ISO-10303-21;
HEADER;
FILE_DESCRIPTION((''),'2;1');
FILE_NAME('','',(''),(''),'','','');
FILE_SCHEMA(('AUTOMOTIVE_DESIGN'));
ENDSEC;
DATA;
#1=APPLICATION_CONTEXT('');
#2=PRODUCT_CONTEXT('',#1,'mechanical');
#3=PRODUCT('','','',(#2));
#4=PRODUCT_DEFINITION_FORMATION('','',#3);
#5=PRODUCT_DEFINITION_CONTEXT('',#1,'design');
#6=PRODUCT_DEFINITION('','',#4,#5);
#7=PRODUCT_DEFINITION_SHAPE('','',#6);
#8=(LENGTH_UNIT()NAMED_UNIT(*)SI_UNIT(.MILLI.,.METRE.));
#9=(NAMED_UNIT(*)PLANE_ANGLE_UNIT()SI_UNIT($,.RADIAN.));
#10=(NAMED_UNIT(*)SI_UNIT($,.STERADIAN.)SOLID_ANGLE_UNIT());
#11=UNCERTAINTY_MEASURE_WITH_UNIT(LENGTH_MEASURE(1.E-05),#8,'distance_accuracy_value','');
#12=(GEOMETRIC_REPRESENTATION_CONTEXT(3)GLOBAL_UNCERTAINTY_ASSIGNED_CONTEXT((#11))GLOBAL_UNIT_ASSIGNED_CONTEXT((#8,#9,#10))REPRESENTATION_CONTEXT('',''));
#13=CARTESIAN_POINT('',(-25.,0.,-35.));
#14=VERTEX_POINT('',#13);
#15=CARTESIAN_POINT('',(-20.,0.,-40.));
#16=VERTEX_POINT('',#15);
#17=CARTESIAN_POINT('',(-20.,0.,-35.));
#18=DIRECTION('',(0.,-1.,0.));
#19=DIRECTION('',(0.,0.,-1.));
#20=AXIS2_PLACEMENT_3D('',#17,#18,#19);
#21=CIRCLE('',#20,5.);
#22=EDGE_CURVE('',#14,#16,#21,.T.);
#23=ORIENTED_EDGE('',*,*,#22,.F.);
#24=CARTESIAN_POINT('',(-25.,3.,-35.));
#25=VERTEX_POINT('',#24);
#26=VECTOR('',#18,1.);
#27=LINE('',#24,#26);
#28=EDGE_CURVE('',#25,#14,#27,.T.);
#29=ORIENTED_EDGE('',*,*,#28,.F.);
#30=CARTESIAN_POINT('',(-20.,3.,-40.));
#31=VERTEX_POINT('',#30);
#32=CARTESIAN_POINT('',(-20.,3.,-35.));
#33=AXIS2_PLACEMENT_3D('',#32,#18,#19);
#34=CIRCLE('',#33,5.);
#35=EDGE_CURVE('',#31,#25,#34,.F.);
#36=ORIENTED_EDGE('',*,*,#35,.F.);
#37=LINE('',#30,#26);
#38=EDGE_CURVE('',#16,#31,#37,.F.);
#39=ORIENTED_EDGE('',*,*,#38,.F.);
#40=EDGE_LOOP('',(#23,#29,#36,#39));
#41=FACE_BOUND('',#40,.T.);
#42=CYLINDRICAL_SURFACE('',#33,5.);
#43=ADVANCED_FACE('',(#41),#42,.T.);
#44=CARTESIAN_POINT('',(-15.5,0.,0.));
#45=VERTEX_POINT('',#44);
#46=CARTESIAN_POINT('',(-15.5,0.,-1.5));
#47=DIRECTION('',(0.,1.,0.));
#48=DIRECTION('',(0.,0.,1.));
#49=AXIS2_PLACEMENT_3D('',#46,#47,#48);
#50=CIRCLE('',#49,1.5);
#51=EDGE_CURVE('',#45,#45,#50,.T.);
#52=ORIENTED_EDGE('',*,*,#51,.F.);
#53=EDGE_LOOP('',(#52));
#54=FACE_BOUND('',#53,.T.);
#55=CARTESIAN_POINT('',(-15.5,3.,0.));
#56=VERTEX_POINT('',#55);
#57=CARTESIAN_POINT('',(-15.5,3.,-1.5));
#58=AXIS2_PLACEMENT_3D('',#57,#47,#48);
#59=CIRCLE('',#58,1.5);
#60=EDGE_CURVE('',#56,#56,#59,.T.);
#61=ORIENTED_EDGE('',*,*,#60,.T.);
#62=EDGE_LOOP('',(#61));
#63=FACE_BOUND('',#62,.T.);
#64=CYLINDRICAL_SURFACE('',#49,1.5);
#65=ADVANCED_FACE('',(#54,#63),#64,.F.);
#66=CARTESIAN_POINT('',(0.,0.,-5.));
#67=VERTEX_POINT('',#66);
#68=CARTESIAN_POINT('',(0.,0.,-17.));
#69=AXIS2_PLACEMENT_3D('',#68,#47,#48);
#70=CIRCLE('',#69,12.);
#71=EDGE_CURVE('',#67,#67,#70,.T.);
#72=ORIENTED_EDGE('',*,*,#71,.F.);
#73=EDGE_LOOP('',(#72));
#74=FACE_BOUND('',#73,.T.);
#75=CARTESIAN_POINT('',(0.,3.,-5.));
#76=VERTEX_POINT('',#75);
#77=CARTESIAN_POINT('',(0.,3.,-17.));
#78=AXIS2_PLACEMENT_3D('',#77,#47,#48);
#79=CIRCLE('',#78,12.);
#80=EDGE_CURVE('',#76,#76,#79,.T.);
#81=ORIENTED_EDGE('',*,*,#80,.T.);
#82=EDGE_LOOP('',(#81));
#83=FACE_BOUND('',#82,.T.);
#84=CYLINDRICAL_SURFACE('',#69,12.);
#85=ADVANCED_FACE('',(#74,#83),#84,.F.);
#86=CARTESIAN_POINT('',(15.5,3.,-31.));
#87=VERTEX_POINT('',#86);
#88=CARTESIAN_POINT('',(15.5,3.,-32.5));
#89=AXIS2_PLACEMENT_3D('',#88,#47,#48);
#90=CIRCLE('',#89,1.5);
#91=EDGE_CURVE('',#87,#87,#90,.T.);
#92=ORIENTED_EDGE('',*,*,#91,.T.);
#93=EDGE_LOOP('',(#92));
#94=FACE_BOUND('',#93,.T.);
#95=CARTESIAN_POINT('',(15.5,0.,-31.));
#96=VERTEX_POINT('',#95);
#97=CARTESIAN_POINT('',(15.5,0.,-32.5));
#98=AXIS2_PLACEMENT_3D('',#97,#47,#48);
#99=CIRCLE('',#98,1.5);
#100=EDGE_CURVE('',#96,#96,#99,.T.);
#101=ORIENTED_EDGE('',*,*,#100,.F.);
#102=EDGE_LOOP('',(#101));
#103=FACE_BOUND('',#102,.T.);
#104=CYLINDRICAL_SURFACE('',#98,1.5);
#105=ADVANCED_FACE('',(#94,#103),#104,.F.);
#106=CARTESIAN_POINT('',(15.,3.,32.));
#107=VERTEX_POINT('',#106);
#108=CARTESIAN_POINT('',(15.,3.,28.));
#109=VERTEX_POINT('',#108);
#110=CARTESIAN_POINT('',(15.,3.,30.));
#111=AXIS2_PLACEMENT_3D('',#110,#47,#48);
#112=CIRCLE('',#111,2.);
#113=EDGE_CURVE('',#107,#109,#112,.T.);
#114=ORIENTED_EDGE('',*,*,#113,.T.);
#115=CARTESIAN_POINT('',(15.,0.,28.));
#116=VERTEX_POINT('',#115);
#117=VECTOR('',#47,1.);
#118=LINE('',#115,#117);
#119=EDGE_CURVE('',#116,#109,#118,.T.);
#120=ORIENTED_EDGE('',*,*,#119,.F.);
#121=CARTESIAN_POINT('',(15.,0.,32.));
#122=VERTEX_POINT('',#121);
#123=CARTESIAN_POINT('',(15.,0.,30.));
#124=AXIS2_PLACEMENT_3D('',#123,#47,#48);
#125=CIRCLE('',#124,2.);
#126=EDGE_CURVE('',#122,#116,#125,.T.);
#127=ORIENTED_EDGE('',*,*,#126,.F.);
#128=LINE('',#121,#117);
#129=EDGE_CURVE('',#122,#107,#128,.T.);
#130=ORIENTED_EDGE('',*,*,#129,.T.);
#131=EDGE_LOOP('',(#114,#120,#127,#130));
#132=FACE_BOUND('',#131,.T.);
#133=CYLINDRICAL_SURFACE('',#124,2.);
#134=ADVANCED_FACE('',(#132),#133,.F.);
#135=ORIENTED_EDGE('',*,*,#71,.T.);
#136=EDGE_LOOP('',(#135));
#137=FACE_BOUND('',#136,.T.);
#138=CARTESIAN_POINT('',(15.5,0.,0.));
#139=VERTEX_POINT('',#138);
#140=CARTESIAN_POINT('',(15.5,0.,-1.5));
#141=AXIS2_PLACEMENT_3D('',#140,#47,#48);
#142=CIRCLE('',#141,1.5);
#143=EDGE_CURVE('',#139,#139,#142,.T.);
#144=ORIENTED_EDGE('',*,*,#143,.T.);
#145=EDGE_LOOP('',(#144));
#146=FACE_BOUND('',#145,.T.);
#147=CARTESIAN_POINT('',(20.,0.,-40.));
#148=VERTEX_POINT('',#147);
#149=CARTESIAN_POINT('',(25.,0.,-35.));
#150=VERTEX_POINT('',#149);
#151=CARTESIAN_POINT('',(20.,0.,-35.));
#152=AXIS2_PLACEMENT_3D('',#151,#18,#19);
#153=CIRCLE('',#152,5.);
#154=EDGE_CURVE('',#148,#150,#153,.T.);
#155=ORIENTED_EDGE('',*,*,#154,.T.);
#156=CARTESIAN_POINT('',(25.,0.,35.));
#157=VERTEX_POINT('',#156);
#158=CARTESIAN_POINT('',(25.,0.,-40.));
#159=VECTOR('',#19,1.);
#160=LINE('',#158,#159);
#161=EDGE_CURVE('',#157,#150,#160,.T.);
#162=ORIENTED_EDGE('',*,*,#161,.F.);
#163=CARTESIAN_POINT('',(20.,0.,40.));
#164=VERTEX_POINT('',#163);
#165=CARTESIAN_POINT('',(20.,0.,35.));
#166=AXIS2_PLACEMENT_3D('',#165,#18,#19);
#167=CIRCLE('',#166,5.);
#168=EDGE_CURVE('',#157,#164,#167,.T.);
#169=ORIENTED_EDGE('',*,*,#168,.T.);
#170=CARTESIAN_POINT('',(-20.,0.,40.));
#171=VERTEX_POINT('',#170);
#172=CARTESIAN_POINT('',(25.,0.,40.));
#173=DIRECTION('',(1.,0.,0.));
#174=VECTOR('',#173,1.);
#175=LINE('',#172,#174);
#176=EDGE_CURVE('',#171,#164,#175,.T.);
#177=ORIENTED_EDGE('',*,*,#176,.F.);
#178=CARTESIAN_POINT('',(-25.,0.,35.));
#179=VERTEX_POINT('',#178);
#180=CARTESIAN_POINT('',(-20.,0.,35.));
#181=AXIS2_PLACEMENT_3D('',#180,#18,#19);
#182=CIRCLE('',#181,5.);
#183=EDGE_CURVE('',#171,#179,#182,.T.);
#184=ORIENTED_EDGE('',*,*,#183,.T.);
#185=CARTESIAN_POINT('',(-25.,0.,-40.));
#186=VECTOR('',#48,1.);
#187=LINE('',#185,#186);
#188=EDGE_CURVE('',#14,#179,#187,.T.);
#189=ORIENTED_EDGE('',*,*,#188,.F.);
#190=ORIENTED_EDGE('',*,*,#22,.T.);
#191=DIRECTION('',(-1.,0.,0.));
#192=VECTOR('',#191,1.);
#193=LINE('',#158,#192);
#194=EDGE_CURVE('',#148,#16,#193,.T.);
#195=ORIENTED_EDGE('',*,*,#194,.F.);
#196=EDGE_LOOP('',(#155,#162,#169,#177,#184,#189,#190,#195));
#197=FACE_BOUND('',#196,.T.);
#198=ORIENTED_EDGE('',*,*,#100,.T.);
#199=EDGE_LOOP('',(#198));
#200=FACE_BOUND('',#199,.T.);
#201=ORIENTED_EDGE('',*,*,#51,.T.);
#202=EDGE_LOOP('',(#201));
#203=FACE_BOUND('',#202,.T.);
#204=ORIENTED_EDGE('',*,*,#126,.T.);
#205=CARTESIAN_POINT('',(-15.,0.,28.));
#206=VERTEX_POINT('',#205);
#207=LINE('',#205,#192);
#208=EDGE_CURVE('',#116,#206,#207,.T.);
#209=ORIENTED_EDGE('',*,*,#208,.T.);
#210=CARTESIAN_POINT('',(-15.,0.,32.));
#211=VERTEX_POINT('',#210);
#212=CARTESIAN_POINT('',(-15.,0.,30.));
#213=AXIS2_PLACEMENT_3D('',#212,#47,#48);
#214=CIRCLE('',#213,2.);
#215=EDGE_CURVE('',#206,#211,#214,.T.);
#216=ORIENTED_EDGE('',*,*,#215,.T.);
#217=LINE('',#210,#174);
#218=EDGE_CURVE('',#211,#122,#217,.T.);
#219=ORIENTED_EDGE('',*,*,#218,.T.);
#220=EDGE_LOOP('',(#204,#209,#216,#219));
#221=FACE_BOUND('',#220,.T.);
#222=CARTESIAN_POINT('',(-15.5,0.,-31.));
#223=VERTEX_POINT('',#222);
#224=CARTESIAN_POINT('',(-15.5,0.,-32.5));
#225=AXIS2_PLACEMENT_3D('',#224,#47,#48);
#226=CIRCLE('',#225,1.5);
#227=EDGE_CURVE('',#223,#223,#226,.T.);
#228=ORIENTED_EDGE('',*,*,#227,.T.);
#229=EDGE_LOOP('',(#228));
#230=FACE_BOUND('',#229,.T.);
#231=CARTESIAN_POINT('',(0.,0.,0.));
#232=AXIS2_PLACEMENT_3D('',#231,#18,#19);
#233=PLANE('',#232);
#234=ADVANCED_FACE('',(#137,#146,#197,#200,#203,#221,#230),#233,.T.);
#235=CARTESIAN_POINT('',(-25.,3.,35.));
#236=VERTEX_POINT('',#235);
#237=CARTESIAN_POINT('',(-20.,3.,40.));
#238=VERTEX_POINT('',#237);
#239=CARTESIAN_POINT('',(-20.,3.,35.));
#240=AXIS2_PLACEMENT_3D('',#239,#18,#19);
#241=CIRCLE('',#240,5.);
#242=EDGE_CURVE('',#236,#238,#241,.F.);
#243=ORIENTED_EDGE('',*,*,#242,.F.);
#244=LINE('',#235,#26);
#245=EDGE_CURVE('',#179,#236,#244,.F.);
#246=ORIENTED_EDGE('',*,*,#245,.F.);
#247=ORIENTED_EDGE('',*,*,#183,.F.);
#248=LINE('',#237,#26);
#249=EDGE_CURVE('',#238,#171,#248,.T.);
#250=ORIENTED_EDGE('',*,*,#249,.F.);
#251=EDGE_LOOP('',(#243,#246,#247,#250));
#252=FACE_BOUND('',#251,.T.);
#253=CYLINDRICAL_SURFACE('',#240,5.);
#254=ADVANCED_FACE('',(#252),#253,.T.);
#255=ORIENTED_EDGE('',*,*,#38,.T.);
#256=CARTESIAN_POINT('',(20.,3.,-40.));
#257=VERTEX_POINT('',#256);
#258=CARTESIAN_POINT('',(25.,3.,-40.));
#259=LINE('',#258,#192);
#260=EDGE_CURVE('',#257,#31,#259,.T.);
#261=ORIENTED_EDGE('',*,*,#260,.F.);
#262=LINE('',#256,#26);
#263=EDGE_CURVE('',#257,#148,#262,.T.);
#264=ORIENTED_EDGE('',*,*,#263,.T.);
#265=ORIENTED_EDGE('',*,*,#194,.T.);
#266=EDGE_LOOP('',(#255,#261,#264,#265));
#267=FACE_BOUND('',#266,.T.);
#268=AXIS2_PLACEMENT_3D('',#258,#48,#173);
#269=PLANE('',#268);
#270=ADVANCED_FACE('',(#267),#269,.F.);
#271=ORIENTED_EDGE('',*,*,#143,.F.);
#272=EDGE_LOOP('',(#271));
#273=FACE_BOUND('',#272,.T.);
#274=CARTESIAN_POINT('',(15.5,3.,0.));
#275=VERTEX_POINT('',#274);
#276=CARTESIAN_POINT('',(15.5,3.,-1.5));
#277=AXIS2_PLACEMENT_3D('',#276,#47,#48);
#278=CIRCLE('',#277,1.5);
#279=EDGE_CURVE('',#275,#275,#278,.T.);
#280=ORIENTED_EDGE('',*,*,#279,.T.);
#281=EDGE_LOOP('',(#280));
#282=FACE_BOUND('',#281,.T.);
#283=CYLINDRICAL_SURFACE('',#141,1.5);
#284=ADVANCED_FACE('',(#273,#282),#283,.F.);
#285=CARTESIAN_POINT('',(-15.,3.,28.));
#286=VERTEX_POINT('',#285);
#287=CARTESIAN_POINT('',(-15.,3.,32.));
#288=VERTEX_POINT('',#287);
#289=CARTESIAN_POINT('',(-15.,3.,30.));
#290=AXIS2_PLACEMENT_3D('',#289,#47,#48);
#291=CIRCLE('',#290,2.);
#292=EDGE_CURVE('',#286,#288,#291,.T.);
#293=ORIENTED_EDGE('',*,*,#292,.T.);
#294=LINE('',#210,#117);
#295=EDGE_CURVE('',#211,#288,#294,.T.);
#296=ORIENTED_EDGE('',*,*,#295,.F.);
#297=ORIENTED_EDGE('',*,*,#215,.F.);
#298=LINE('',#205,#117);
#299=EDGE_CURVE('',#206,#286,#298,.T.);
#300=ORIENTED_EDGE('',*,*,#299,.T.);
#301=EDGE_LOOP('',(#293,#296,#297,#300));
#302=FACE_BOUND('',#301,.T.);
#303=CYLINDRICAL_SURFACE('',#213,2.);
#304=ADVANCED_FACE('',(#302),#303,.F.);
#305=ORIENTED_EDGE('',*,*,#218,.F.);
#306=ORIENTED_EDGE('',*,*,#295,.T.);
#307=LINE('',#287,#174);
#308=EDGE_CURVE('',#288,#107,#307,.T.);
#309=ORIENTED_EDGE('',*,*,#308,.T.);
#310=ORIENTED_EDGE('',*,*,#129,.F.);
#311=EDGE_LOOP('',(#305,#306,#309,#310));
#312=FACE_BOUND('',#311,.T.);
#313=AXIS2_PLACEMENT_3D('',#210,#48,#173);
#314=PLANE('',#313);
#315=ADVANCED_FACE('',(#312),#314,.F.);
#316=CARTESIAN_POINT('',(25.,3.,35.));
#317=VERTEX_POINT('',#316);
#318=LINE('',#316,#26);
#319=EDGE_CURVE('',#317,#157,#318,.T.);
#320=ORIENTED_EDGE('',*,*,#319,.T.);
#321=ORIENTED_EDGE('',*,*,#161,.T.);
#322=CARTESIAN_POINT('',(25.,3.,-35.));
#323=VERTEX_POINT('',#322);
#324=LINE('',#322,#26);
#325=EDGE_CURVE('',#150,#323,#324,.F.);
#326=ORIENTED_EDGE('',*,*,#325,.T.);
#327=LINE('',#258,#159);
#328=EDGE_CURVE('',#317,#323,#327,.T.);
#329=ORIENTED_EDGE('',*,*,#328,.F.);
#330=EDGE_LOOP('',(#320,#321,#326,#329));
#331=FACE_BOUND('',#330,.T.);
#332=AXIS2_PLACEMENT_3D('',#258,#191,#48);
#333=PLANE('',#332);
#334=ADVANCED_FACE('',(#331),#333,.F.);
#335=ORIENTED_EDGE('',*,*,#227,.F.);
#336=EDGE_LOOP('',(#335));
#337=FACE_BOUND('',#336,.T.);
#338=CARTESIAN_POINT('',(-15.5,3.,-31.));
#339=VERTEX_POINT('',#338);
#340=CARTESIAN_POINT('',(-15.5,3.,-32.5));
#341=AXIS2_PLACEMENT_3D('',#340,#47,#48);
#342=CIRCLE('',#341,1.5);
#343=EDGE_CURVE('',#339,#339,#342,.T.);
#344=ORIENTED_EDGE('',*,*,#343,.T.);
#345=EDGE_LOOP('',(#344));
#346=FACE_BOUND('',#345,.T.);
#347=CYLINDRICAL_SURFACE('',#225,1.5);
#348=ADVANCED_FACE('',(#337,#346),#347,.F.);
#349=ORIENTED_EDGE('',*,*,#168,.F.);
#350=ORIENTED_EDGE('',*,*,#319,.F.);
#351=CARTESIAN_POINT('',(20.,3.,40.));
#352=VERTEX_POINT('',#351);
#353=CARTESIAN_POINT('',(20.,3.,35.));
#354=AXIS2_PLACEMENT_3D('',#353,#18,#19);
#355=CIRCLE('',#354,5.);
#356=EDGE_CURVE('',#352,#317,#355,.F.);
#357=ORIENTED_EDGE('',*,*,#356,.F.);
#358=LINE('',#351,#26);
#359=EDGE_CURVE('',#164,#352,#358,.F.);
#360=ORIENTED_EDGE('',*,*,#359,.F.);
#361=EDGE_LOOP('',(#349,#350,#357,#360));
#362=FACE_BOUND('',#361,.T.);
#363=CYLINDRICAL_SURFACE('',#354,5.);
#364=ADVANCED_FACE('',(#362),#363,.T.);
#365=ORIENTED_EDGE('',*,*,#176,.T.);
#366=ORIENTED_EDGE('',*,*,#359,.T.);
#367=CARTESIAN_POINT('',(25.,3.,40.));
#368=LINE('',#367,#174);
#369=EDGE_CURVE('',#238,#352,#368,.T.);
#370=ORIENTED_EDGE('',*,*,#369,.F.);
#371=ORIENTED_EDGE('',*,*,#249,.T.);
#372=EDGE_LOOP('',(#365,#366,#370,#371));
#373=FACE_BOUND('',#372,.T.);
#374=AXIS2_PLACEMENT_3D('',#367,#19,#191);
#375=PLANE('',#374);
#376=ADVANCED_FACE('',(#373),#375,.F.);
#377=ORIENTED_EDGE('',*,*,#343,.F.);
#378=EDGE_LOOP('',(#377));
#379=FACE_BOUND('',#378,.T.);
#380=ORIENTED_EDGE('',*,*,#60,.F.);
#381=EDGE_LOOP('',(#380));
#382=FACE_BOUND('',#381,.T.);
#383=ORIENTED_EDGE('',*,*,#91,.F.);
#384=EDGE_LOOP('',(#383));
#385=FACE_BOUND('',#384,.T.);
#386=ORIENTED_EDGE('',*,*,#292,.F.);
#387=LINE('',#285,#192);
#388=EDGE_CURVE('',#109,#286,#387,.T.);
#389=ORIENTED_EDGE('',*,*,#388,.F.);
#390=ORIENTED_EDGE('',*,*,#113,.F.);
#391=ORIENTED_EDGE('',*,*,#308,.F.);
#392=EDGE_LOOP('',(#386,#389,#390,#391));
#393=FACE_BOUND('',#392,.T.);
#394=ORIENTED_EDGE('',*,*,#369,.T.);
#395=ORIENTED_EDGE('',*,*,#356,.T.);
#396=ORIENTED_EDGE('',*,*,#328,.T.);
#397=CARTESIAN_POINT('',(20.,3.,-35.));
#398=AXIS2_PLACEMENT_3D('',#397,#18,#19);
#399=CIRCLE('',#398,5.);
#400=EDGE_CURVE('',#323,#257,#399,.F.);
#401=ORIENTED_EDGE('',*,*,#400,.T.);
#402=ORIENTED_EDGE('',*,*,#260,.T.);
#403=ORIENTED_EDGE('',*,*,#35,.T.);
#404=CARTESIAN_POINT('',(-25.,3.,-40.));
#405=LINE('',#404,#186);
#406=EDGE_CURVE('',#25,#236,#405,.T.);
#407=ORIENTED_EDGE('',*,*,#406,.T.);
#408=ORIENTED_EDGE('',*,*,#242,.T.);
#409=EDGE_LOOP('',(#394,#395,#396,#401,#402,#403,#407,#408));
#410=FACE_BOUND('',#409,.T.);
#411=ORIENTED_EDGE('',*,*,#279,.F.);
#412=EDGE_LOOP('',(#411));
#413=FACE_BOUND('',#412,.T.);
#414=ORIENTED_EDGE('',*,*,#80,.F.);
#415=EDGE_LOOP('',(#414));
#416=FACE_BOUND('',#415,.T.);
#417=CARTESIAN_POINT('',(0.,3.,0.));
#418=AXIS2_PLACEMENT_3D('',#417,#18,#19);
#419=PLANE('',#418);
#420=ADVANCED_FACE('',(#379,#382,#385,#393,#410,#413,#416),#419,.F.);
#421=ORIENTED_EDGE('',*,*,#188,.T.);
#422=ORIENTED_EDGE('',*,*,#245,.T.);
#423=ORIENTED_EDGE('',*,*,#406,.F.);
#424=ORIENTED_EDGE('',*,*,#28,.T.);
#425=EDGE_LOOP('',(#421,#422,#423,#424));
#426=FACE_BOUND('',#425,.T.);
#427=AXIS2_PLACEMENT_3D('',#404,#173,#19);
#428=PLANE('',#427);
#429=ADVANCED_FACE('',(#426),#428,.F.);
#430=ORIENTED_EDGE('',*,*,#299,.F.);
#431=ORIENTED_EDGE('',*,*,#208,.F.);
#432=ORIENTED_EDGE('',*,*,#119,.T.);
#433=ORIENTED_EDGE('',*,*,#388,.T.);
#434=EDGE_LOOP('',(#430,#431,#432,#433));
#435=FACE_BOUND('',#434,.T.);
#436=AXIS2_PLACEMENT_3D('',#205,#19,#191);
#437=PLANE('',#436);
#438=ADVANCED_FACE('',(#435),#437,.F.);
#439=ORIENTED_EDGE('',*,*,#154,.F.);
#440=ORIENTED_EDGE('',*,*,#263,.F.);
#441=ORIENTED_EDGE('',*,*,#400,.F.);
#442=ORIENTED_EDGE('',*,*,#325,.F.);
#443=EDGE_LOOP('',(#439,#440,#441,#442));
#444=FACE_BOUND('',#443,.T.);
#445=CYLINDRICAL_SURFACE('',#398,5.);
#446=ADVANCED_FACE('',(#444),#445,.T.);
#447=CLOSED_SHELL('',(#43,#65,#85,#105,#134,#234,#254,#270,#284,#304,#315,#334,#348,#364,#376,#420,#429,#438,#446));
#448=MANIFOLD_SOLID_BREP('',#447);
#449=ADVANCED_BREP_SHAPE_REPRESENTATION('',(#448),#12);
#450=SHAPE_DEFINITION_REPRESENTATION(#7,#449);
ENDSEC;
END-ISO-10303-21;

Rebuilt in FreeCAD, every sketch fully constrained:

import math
import FreeCAD as App
import Part
import Sketcher

V = App.Vector
Q = App.Units.Quantity


def edges_at(feature, points):
    """Names of the edges that pass closest to the given points."""
    edges = feature.Shape.Edges
    near = lambda p: min(range(len(edges)), key=lambda i: edges[i].distToShape(Part.Vertex(*p))[0])
    return sorted({f"Edge{near(p) + 1}" for p in points})

doc = App.newDocument("Part")
params = doc.addObject("Spreadsheet::Sheet", "Params")
for row, (alias, value) in enumerate([
    ("sketch1_width", "50 mm"),
    ("sketch1_height", "80 mm"),
    ("pad1_length", "3 mm"),
    ("sketch2_diameter", "3 mm"),
    ("sketch2_diameter2", "24 mm"),
    ("sketch2_radius", "2 mm"),
    ("sketch2_width", "30 mm"),
    ("fillet_radius", "5 mm"),
], start=1):
    params.set(f"A{row}", alias)
    params.set(f"B{row}", "=" + value)
    params.setAlias(f"B{row}", alias)

body = doc.addObject("PartDesign::Body", "Body")

# Sketch on XZ plane
sketch1 = body.newObject("Sketcher::SketchObject", "Sketch")
sketch1.AttachmentSupport = (doc.getObject("XZ_Plane"), [""])
sketch1.MapMode = "FlatFace"
sketch1.addGeometry([
    Part.LineSegment(V(-25, -40, 0), V(-25, 40, 0)),
    Part.LineSegment(V(-25, 40, 0), V(25, 40, 0)),
    Part.LineSegment(V(25, 40, 0), V(25, -40, 0)),
    Part.LineSegment(V(25, -40, 0), V(-25, -40, 0)),
], False)
sketch1.addConstraint([
    Sketcher.Constraint("Coincident", 0, 2, 1, 1),
    Sketcher.Constraint("Coincident", 1, 2, 2, 1),
    Sketcher.Constraint("Coincident", 2, 2, 3, 1),
    Sketcher.Constraint("Coincident", 3, 2, 0, 1),
    Sketcher.Constraint("Vertical", 0),
    Sketcher.Constraint("Horizontal", 1),
    Sketcher.Constraint("Vertical", 2),
    Sketcher.Constraint("Horizontal", 3),
    Sketcher.Constraint("Symmetric", 0, 2, 2, 2, -1, 1),
    Sketcher.Constraint("DistanceX", 1, 1, 1, 2, Q("50 mm")),
    Sketcher.Constraint("DistanceY", 0, 1, 0, 2, Q("80 mm")),
])
sketch1.setExpression("Constraints[9]", "Params.sketch1_width")
sketch1.setExpression("Constraints[10]", "Params.sketch1_height")
pad1 = body.newObject("PartDesign::Pad", "Pad")
pad1.Profile = sketch1
pad1.setExpression("Length", "Params.pad1_length")
pad1.Reversed = True

# Sketch on XZ plane
sketch2 = body.newObject("Sketcher::SketchObject", "Sketch001")
sketch2.AttachmentSupport = (doc.getObject("XZ_Plane"), [""])
sketch2.MapMode = "FlatFace"
sketch2.AttachmentOffset = App.Placement(V(0, 0, -3), App.Rotation())
sketch2.addGeometry([
    Part.Circle(V(15.5, -32.5, 0), V(0, 0, 1), 1.5),  # 0
    Part.Circle(V(-15.5, -32.5, 0), V(0, 0, 1), 1.5),  # 1
    Part.Circle(V(-15.5, -1.5, 0), V(0, 0, 1), 1.5),  # 2
    Part.Circle(V(15.5, -1.5, 0), V(0, 0, 1), 1.5),  # 3
    Part.Circle(V(0, -17, 0), V(0, 0, 1), 12),  # 4
    Part.LineSegment(V(15, 28, 0), V(-15, 28, 0)),  # 5
    Part.ArcOfCircle(Part.Circle(V(-15, 30, 0), V(0, 0, 1), 2), math.radians(90), math.radians(270)),  # 6
    Part.LineSegment(V(-15, 32, 0), V(15, 32, 0)),  # 7
    Part.ArcOfCircle(Part.Circle(V(15, 30, 0), V(0, 0, 1), 2), math.radians(-90), math.radians(90)),  # 8
], False)
sketch2.addConstraint([
    Sketcher.Constraint("Tangent", 5, 2, 6, 2),
    Sketcher.Constraint("Tangent", 6, 1, 7, 1),
    Sketcher.Constraint("Tangent", 7, 2, 8, 2),
    Sketcher.Constraint("Tangent", 8, 1, 5, 1),
    Sketcher.Constraint("Horizontal", 5),
    Sketcher.Constraint("Horizontal", 7),
    Sketcher.Constraint("Equal", 0, 1),
    Sketcher.Constraint("Equal", 1, 2),
    Sketcher.Constraint("Equal", 2, 3),
    Sketcher.Constraint("Symmetric", 0, 3, 1, 3, -2),
    Sketcher.Constraint("Symmetric", 2, 3, 3, 3, -2),
    Sketcher.Constraint("PointOnObject", 4, 3, -2),
    Sketcher.Constraint("Vertical", 1, 3, 2, 3),
    Sketcher.Constraint("Diameter", 0, Q("3 mm")),
    Sketcher.Constraint("Diameter", 4, Q("24 mm")),
    Sketcher.Constraint("Radius", 6, Q("2 mm")),
    Sketcher.Constraint("DistanceX", 5, 2, 5, 1, Q("30 mm")),
    Sketcher.Constraint("DistanceY", 4, 3, -1, 1, Q("17 mm")),
    Sketcher.Constraint("DistanceX", 6, 3, -1, 1, Q("15 mm")),
    Sketcher.Constraint("DistanceY", -1, 1, 6, 3, Q("30 mm")),
    Sketcher.Constraint("DistanceX", 1, 3, 0, 3, Q("31 mm")),
    Sketcher.Constraint("DistanceY", 1, 3, 2, 3, Q("31 mm")),
    Sketcher.Constraint("DistanceY", 0, 3, -1, 1, Q("32.5 mm")),
])
sketch2.setExpression("Constraints[13]", "Params.sketch2_diameter")
sketch2.setExpression("Constraints[14]", "Params.sketch2_diameter2")
sketch2.setExpression("Constraints[15]", "Params.sketch2_radius")
sketch2.setExpression("Constraints[16]", "Params.sketch2_width")
pocket1 = body.newObject("PartDesign::Pocket", "Pocket")
pocket1.Profile = sketch2
pocket1.Type = "ThroughAll"
pocket1.Reversed = True
doc.recompute()

fillet = body.newObject("PartDesign::Fillet", "Fillet")
fillet.Base = (pocket1, edges_at(pocket1, [
    (-25, 1.5, -40),
    (25, 1.5, -40),
    (25, 1.5, 40),
    (-25, 1.5, 40),
]))
fillet.setExpression("Radius", "Params.fillet_radius")

doc.recompute()
